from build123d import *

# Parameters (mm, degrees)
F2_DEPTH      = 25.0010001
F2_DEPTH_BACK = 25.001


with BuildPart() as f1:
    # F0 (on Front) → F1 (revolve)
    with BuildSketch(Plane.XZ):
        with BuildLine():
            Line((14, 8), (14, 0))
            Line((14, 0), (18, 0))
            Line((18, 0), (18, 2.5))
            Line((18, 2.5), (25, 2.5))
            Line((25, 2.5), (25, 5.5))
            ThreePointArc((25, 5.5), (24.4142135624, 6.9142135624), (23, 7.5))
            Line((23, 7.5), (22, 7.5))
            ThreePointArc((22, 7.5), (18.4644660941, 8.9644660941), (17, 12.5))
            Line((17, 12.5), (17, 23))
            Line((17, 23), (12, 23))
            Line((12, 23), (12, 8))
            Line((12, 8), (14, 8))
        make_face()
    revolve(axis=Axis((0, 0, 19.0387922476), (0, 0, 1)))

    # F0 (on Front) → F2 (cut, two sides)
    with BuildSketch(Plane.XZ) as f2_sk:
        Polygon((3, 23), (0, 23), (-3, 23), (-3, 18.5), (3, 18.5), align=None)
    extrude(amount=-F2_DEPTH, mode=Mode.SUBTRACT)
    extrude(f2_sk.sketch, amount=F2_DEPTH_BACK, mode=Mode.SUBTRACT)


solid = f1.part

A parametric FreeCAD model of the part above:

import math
import FreeCAD as App
import Part
import Sketcher
from FreeCAD import Vector
Q = App.Units.Quantity


def add_polygon(sketch, points):
    """Adds a closed chain of lines whose ends are joined by coincident constraints."""
    first, n = sketch.GeometryCount, len(points)
    for a, b in zip(points, points[1:] + points[:1]):
        sketch.addGeometry(Part.LineSegment(App.Vector(*a, 0), App.Vector(*b, 0)), False)
    for i in range(n):
        sketch.addConstraint(Sketcher.Constraint("Coincident", first + i, 2, first + (i + 1) % n, 1))

doc = App.newDocument("Part")
params = doc.addObject("Spreadsheet::Sheet", "Params")
for row, (alias, value) in enumerate([
    ("sketch1_radius", "2 mm"),
    ("sketch1_radius2", "5 mm"),
    ("sketch1_width", "4 mm"),
    ("sketch1_width2", "7 mm"),
    ("sketch1_width3", "1 mm"),
    ("revolution_angle", "360 deg"),
    ("sketch2_width", "6 mm"),
    ("sketch2_height", "4.5 mm"),
], start=1):
    params.set(f"A{row}", alias)
    params.set(f"B{row}", "=" + value)
    params.setAlias(f"B{row}", alias)

body = doc.addObject("PartDesign::Body", "Body")

# Sketch on XZ plane
sketch1 = doc.addObject("Sketcher::SketchObject", "Sketch")
body.addObject(sketch1)
sketch1.AttachmentSupport = (doc.XZ_Plane, [""])
sketch1.MapMode = "FlatFace"
sketch1.addGeometry(Part.LineSegment(Vector(14, 8, 0), Vector(14, 0, 0)), False)
sketch1.addGeometry(Part.LineSegment(Vector(14, 0, 0), Vector(18, 0, 0)), False)
sketch1.addGeometry(Part.LineSegment(Vector(18, 0, 0), Vector(18, 2.5, 0)), False)
sketch1.addGeometry(Part.LineSegment(Vector(18, 2.5, 0), Vector(25, 2.5, 0)), False)
sketch1.addGeometry(Part.LineSegment(Vector(25, 2.5, 0), Vector(25, 5.5, 0)), False)
sketch1.addGeometry(Part.ArcOfCircle(Part.Circle(Vector(23, 5.5, 0), Vector(0, 0, 1), 2), math.radians(0), math.radians(90)), False)
sketch1.addGeometry(Part.LineSegment(Vector(23, 7.5, 0), Vector(22, 7.5, 0)), False)
sketch1.addGeometry(Part.ArcOfCircle(Part.Circle(Vector(22, 12.5, 0), Vector(0, 0, 1), 5), math.radians(180), math.radians(270)), False)
sketch1.addGeometry(Part.LineSegment(Vector(17, 12.5, 0), Vector(17, 23, 0)), False)
sketch1.addGeometry(Part.LineSegment(Vector(17, 23, 0), Vector(12, 23, 0)), False)
sketch1.addGeometry(Part.LineSegment(Vector(12, 23, 0), Vector(12, 8, 0)), False)
sketch1.addGeometry(Part.LineSegment(Vector(12, 8, 0), Vector(14, 8, 0)), False)
sketch1.addConstraint(Sketcher.Constraint("Coincident", 0, 2, 1, 1))
sketch1.addConstraint(Sketcher.Constraint("Coincident", 1, 2, 2, 1))
sketch1.addConstraint(Sketcher.Constraint("Coincident", 2, 2, 3, 1))
sketch1.addConstraint(Sketcher.Constraint("Coincident", 3, 2, 4, 1))
sketch1.addConstraint(Sketcher.Constraint("Tangent", 4, 2, 5, 1))
sketch1.addConstraint(Sketcher.Constraint("Tangent", 5, 2, 6, 1))
sketch1.addConstraint(Sketcher.Constraint("Tangent", 6, 2, 7, 2))
sketch1.addConstraint(Sketcher.Constraint("Tangent", 7, 1, 8, 1))
sketch1.addConstraint(Sketcher.Constraint("Coincident", 8, 2, 9, 1))
sketch1.addConstraint(Sketcher.Constraint("Coincident", 9, 2, 10, 1))
sketch1.addConstraint(Sketcher.Constraint("Coincident", 10, 2, 11, 1))
sketch1.addConstraint(Sketcher.Constraint("Coincident", 11, 2, 0, 1))
sketch1.addConstraint(Sketcher.Constraint("Vertical", 0))
sketch1.addConstraint(Sketcher.Constraint("Horizontal", 1))
sketch1.addConstraint(Sketcher.Constraint("Vertical", 2))
sketch1.addConstraint(Sketcher.Constraint("Horizontal", 3))
sketch1.addConstraint(Sketcher.Constraint("Vertical", 4))
sketch1.addConstraint(Sketcher.Constraint("Horizontal", 6))
sketch1.addConstraint(Sketcher.Constraint("Vertical", 8))
sketch1.addConstraint(Sketcher.Constraint("Horizontal", 9))
sketch1.addConstraint(Sketcher.Constraint("Vertical", 10))
sketch1.addConstraint(Sketcher.Constraint("Horizontal", 11))
sketch1.addConstraint(Sketcher.Constraint("PointOnObject", 0, 2, -1))
sketch1.addConstraint(Sketcher.Constraint("Radius", 5, Q("2 mm")))
sketch1.addConstraint(Sketcher.Constraint("Radius", 7, Q("5 mm")))
sketch1.addConstraint(Sketcher.Constraint("DistanceX", 1, 1, 1, 2, Q("4 mm")))
sketch1.addConstraint(Sketcher.Constraint("DistanceX", 3, 1, 3, 2, Q("7 mm")))
sketch1.addConstraint(Sketcher.Constraint("DistanceX", 6, 2, 6, 1, Q("1 mm")))
sketch1.addConstraint(Sketcher.Constraint("DistanceX", 9, 2, 9, 1, Q("5 mm")))
sketch1.addConstraint(Sketcher.Constraint("DistanceY", 0, 2, 0, 1, Q("8 mm")))
sketch1.addConstraint(Sketcher.Constraint("DistanceY", 4, 1, 4, 2, Q("3 mm")))
sketch1.addConstraint(Sketcher.Constraint("DistanceY", 10, 2, 10, 1, Q("15 mm")))
sketch1.addConstraint(Sketcher.Constraint("DistanceY", 2, 1, 2, 2, Q("2.5 mm")))
sketch1.addConstraint(Sketcher.Constraint("DistanceX", -1, 1, 5, 3, Q("23 mm")))
sketch1.setExpression("Constraints[23]", "Params.sketch1_radius")
sketch1.setExpression("Constraints[24]", "Params.sketch1_radius2")
sketch1.setExpression("Constraints[25]", "Params.sketch1_width")
sketch1.setExpression("Constraints[26]", "Params.sketch1_width2")
sketch1.setExpression("Constraints[27]", "Params.sketch1_width3")
revolution = doc.addObject("PartDesign::Revolution", "Revolution")
body.addObject(revolution)
revolution.Profile = sketch1
revolution.ReferenceAxis = (sketch1, ["V_Axis"])
revolution.setExpression("Angle", "Params.revolution_angle")

# Sketch on XZ plane
sketch2 = doc.addObject("Sketcher::SketchObject", "Sketch001")
body.addObject(sketch2)
sketch2.AttachmentSupport = (doc.XZ_Plane, [""])
sketch2.MapMode = "FlatFace"
add_polygon(sketch2, [(3, 23), (-3, 23), (-3, 18.5), (3, 18.5)])  # lines 0-3
sketch2.addConstraint(Sketcher.Constraint("Horizontal", 0))
sketch2.addConstraint(Sketcher.Constraint("Vertical", 1))
sketch2.addConstraint(Sketcher.Constraint("Horizontal", 2))
sketch2.addConstraint(Sketcher.Constraint("Vertical", 3))
sketch2.addConstraint(Sketcher.Constraint("DistanceX", 0, 2, 0, 1, Q("6 mm")))
sketch2.addConstraint(Sketcher.Constraint("DistanceY", 1, 2, 1, 1, Q("4.5 mm")))
sketch2.addConstraint(Sketcher.Constraint("DistanceX", 0, 2, -1, 1, Q("3 mm")))
sketch2.addConstraint(Sketcher.Constraint("DistanceY", -1, 1, 0, 2, Q("23 mm")))
sketch2.setExpression("Constraints[8]", "Params.sketch2_width")
sketch2.setExpression("Constraints[9]", "Params.sketch2_height")
pocket1 = doc.addObject("PartDesign::Pocket", "Pocket")
body.addObject(pocket1)
pocket1.Profile = sketch2
pocket1.Type = "ThroughAll"
pocket1.Midplane = True

doc.recompute()
